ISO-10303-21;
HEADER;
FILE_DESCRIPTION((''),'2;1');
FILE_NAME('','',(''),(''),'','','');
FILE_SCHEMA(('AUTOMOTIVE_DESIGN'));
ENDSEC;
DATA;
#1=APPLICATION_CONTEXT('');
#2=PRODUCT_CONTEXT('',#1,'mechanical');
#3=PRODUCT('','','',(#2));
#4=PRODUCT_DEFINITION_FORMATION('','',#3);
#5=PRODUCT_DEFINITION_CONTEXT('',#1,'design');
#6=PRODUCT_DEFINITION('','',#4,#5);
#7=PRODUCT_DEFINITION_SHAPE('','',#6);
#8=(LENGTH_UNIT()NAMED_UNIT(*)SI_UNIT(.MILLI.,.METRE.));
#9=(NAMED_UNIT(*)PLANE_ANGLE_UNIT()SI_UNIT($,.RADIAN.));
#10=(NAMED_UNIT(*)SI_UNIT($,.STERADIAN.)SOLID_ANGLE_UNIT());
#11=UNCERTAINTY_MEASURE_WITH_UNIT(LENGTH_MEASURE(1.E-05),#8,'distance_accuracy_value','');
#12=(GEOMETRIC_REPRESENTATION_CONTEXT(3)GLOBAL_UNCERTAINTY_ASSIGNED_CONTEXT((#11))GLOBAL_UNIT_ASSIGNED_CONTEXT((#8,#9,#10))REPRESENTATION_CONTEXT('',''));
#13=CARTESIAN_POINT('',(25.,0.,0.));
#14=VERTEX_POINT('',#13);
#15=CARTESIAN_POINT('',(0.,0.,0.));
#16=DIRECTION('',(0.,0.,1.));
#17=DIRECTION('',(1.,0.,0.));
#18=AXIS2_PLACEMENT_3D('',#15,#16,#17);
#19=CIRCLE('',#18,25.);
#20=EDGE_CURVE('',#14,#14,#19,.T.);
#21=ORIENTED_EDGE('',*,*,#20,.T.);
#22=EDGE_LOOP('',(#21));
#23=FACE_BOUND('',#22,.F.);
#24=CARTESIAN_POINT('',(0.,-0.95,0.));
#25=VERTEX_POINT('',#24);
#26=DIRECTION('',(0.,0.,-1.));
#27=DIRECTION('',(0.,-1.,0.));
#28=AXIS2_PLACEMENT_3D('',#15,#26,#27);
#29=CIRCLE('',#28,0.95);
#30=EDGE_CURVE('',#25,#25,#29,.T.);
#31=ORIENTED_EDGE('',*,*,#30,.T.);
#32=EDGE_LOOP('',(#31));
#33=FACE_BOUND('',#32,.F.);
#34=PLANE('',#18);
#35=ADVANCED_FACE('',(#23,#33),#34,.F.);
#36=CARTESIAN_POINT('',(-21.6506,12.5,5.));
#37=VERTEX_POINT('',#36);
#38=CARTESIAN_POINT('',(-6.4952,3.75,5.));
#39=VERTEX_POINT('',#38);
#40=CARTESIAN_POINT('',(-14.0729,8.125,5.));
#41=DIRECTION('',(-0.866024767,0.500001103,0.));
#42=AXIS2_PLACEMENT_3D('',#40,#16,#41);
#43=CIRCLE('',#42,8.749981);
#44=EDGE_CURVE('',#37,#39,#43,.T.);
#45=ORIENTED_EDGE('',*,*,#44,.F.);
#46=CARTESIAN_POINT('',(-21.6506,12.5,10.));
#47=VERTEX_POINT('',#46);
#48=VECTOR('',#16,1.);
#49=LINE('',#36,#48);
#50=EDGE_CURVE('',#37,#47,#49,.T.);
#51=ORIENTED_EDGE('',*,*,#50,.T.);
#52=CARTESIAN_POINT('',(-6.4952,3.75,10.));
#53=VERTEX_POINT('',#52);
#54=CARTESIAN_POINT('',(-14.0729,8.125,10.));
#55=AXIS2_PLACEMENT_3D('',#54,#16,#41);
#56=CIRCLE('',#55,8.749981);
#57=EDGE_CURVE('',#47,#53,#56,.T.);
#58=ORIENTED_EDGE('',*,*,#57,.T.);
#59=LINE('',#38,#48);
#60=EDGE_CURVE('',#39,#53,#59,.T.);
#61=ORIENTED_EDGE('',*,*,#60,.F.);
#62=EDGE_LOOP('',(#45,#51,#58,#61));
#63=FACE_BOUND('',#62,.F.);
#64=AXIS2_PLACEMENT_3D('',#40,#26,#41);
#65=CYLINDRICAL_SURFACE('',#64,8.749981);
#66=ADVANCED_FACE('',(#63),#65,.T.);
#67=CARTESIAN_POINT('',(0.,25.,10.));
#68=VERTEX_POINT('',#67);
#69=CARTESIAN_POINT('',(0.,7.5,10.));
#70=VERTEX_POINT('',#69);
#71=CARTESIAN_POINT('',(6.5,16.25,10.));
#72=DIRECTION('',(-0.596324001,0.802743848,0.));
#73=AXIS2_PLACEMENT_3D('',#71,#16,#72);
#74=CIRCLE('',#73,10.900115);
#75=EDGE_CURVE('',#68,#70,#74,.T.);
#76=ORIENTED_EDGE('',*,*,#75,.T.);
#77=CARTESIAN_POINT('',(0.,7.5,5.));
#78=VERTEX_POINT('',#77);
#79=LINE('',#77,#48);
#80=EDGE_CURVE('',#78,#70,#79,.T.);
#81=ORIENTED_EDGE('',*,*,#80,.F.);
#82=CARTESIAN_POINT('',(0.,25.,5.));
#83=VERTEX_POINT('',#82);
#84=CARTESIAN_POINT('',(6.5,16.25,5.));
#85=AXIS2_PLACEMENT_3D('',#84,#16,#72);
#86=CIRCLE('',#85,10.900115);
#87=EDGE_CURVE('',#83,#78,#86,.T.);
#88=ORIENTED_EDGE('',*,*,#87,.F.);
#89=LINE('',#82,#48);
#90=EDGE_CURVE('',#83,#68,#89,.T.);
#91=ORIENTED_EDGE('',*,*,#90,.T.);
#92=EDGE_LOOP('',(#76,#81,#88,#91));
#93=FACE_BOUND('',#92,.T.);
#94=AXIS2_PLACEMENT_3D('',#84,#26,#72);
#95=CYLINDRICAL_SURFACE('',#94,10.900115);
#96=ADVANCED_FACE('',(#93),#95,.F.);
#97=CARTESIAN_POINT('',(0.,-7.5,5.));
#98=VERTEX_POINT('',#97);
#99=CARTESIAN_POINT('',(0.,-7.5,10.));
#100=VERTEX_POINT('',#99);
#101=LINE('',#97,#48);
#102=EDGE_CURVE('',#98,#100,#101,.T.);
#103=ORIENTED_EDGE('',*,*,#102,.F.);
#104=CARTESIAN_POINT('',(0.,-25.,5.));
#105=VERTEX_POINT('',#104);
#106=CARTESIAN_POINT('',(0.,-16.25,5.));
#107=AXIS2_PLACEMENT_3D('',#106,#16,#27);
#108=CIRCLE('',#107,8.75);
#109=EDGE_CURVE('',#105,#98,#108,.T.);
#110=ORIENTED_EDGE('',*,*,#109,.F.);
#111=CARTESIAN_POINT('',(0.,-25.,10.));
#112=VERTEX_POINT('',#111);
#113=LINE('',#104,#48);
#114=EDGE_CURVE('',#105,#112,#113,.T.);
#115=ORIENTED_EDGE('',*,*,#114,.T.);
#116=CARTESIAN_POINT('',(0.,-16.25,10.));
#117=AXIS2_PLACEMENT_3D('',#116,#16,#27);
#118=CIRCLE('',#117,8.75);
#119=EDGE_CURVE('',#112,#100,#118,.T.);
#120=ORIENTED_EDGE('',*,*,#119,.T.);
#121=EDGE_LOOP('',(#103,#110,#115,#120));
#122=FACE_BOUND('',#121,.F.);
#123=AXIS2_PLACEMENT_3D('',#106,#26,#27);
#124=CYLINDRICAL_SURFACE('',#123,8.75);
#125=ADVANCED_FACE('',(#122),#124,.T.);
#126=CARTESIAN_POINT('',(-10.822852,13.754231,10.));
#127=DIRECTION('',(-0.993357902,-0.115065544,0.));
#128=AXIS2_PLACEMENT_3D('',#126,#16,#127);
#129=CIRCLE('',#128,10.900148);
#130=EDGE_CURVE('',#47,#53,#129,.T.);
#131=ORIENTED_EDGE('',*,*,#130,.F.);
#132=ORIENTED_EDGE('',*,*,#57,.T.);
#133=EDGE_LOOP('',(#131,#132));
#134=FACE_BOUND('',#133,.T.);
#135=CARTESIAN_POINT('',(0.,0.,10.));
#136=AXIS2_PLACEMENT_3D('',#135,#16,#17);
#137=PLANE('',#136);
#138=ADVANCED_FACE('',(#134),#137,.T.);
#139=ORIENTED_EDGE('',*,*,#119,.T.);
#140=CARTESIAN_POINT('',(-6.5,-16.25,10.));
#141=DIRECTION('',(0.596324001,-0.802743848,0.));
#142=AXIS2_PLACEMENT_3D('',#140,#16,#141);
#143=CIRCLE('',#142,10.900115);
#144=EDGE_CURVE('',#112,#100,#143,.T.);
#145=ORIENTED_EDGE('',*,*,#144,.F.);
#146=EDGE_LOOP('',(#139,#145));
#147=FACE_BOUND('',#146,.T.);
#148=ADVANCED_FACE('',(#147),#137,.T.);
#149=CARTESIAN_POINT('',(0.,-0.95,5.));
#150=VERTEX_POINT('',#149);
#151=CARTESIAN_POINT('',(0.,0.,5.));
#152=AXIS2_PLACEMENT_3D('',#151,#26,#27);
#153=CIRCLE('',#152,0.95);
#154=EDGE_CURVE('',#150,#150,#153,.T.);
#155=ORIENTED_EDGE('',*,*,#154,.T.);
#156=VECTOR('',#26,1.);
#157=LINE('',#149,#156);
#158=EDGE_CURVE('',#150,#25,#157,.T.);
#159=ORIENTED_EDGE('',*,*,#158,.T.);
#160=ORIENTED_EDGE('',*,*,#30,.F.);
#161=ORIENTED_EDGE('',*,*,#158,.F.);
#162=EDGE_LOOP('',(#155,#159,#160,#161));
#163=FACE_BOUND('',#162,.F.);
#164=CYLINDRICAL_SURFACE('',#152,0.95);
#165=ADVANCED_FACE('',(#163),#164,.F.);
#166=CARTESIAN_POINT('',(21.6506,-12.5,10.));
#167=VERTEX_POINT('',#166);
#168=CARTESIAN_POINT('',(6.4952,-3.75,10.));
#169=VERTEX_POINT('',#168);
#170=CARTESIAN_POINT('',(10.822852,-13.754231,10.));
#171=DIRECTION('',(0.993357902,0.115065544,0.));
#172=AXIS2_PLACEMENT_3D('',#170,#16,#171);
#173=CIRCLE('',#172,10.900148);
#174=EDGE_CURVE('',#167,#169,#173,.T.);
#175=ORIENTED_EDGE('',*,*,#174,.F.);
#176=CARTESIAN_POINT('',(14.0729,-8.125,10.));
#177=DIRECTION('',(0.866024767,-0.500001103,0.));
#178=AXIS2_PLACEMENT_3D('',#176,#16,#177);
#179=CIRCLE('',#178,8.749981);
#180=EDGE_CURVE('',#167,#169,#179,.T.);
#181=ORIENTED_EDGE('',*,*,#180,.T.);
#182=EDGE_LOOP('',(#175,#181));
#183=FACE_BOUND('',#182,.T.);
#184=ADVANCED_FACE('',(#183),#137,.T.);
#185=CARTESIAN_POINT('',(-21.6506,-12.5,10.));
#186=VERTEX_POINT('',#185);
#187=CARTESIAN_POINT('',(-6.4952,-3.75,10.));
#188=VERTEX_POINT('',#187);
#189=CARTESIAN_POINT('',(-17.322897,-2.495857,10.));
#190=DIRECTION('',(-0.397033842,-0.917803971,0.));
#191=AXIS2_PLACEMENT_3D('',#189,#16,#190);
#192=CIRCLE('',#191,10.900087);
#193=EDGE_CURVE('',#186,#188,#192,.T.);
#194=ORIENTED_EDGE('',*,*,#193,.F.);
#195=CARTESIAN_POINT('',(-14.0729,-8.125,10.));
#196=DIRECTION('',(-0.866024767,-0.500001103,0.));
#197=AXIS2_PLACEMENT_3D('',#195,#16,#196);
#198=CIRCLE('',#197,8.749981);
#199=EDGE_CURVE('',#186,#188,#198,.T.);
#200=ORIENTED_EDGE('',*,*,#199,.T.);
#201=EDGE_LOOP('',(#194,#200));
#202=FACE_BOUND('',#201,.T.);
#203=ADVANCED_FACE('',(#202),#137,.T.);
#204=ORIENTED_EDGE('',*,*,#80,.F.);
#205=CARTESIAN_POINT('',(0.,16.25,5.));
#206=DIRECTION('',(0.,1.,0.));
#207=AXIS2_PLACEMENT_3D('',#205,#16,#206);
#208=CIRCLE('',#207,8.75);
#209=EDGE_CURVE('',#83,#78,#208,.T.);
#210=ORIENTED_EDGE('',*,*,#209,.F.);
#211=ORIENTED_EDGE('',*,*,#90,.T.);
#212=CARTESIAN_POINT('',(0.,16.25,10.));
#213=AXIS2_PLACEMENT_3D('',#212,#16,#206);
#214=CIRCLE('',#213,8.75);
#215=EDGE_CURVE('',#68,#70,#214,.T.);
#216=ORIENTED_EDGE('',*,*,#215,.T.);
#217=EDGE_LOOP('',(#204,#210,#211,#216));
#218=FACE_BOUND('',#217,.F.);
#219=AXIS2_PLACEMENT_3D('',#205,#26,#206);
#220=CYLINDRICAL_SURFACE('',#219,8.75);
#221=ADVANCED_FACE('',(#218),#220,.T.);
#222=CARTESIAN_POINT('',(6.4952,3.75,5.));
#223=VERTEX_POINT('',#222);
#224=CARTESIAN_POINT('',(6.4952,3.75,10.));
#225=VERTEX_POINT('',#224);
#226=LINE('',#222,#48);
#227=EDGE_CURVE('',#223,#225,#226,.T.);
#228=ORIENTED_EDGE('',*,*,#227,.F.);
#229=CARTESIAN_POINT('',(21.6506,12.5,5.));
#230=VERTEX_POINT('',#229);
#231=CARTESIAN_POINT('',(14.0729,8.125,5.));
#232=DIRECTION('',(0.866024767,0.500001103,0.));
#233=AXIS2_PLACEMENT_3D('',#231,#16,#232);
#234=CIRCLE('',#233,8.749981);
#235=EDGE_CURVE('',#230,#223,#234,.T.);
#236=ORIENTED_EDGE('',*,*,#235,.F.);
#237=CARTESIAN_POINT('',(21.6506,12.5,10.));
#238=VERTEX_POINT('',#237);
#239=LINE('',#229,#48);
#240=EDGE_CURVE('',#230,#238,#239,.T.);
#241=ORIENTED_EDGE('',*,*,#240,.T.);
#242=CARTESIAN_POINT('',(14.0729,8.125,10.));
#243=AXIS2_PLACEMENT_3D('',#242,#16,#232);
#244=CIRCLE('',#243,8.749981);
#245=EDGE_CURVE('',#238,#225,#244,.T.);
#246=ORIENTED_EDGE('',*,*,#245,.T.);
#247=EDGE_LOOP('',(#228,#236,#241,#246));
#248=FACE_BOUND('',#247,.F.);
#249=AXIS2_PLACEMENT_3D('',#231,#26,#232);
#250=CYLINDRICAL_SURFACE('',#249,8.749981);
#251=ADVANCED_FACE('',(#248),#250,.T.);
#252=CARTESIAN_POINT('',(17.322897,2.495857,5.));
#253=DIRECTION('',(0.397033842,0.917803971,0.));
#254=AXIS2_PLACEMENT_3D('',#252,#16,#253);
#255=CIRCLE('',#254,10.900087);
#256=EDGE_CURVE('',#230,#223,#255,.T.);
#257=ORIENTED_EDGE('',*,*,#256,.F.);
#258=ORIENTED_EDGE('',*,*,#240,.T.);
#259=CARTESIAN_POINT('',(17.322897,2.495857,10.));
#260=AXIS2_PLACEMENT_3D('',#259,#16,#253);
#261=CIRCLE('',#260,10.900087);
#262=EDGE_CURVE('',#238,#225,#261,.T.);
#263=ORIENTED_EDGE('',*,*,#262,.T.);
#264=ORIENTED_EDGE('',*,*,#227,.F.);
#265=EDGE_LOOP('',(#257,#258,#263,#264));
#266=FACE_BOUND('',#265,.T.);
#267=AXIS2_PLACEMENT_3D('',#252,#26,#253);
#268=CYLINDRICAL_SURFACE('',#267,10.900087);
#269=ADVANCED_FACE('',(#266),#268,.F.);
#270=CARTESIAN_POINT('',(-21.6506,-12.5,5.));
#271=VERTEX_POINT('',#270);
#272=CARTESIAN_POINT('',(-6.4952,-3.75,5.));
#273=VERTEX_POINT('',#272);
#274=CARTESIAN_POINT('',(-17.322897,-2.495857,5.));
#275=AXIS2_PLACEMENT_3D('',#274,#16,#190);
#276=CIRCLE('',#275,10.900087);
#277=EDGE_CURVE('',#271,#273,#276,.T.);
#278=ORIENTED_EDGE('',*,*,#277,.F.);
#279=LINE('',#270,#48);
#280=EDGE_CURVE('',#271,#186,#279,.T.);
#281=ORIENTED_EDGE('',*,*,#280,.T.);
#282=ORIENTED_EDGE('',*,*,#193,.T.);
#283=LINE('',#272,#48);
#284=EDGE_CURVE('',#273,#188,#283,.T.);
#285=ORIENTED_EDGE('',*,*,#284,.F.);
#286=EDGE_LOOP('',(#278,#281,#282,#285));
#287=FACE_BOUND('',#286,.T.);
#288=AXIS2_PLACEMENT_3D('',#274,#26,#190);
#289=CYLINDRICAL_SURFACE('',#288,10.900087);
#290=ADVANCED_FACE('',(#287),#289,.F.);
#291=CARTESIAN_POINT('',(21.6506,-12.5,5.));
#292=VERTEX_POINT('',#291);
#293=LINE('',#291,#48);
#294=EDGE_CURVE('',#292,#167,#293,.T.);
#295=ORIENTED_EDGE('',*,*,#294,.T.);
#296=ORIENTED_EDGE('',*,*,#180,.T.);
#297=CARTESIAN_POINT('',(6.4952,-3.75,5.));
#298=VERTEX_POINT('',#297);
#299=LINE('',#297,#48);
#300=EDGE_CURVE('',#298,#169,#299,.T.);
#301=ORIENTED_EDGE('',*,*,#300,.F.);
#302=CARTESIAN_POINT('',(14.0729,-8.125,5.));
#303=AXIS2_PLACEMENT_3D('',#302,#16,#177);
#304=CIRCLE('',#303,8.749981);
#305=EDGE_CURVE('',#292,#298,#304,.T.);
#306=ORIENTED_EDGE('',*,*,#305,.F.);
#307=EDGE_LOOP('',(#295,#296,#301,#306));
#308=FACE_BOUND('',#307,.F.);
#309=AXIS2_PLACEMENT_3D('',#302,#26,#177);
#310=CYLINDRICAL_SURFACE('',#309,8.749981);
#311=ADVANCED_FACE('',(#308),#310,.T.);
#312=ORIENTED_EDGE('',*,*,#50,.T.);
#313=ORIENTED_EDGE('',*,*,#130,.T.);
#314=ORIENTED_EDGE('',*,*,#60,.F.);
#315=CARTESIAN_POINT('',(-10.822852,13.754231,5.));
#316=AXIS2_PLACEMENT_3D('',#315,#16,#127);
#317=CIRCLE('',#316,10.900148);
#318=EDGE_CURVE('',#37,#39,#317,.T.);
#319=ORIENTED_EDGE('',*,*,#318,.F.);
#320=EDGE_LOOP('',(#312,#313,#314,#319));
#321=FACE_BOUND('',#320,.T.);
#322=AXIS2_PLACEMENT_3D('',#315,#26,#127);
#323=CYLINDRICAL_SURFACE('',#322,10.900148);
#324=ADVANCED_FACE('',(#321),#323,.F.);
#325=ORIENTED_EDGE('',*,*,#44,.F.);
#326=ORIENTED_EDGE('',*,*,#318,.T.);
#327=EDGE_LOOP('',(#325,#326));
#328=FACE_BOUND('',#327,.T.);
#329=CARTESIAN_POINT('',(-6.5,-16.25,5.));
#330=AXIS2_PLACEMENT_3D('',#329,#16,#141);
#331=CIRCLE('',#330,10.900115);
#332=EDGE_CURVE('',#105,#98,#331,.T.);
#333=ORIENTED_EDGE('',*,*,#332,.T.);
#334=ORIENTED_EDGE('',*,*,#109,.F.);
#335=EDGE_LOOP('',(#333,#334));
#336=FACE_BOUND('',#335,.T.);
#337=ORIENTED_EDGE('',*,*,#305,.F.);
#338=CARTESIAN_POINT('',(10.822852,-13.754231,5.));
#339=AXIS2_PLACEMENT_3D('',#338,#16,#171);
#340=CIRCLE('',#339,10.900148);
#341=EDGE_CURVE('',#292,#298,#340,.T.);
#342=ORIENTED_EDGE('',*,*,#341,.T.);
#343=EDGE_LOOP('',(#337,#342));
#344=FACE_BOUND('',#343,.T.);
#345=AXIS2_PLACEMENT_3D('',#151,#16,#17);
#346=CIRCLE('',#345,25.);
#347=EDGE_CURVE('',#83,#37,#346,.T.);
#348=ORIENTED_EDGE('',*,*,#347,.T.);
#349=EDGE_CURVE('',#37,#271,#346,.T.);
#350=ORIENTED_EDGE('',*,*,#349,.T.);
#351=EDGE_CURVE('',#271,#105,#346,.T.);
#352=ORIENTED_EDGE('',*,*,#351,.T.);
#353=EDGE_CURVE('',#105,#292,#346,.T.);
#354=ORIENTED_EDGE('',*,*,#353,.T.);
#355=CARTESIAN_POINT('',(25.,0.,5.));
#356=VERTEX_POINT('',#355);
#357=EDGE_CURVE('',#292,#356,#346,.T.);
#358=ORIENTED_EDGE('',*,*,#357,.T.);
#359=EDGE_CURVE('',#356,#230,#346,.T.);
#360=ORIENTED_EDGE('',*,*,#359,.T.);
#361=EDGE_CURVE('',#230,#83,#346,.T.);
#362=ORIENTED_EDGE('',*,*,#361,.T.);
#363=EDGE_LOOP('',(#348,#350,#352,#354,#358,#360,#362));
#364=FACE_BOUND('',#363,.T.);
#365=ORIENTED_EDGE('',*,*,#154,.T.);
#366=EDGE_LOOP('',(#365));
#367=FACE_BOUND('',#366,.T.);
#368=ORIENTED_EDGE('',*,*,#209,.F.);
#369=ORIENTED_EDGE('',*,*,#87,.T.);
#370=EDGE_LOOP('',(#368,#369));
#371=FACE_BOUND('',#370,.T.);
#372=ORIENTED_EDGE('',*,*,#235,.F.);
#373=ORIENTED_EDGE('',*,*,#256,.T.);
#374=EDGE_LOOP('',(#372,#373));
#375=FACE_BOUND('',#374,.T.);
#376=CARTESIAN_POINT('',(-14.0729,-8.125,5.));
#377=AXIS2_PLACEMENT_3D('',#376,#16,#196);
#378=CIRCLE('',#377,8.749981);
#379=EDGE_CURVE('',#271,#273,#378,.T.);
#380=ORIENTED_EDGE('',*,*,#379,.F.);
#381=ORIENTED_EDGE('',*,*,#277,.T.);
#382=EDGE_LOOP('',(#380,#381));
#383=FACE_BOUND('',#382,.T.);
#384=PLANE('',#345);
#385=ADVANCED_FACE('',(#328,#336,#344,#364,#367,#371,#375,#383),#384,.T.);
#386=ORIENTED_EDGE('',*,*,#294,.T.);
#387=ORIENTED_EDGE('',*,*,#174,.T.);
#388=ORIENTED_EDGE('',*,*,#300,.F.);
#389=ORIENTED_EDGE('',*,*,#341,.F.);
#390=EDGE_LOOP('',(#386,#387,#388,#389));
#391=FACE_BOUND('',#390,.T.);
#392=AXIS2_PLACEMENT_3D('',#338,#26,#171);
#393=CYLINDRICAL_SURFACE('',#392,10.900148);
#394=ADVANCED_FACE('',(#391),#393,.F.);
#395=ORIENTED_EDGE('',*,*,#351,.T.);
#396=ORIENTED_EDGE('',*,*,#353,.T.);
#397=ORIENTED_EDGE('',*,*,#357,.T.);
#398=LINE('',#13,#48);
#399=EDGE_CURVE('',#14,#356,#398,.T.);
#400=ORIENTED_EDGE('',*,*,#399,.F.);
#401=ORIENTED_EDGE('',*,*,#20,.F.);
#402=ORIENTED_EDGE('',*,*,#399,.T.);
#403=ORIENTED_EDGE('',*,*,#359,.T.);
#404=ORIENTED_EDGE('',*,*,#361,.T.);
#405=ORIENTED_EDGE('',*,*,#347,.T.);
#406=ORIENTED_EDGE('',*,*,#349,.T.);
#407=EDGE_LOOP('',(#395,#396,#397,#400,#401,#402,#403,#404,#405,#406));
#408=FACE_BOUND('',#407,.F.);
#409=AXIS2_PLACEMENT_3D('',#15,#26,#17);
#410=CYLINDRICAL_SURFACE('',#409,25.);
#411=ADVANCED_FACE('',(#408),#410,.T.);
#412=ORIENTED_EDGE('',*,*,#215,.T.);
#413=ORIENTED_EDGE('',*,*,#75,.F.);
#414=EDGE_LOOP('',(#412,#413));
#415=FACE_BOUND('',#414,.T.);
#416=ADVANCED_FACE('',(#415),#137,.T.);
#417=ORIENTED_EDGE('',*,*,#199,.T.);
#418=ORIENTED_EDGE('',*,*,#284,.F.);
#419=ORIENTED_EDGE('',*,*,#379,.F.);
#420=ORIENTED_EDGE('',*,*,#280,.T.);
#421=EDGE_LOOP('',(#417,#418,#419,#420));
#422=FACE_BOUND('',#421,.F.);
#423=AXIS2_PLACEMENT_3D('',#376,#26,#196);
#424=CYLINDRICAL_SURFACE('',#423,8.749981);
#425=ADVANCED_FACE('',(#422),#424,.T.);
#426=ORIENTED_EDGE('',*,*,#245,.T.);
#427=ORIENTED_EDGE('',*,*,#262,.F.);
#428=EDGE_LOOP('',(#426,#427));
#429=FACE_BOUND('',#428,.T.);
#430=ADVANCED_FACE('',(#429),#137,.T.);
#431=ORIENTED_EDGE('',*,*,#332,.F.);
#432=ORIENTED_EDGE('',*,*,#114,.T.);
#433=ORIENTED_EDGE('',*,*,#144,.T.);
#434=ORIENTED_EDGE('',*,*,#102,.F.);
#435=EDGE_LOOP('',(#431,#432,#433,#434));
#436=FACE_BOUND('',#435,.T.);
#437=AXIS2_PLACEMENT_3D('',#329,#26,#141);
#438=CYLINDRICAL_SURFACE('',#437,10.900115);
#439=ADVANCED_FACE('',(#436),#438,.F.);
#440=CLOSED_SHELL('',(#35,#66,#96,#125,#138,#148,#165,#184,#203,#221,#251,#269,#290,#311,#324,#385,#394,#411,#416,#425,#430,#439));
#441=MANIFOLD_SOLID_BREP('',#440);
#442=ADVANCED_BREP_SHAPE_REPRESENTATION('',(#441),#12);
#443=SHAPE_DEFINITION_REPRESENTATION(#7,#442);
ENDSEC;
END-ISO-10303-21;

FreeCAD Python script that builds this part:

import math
import FreeCAD as App
import Part
import Sketcher
from FreeCAD import Vector
Q = App.Units.Quantity

doc = App.newDocument("Part")
body = doc.addObject("PartDesign::Body", "Body")

# Sketch on XY plane
sketch1 = doc.addObject("Sketcher::SketchObject", "Sketch")
body.addObject(sketch1)
sketch1.AttachmentSupport = (doc.XY_Plane, [""])
sketch1.MapMode = "FlatFace"
sketch1.addGeometry(Part.Circle(Vector(0, 0, 0), Vector(0, 0, 1), 25), False)
sketch1.addConstraint([
    Sketcher.Constraint("Coincident", 0, 3, -1, 1),
    Sketcher.Constraint("Diameter", 0, Q("50 mm")),
])
pad1 = doc.addObject("PartDesign::Pad", "Pad")
body.addObject(pad1)
pad1.Profile = sketch1
pad1.Length = 5

# Sketch on XY plane
sketch2 = doc.addObject("Sketcher::SketchObject", "Sketch001")
body.addObject(sketch2)
sketch2.AttachmentSupport = (doc.XY_Plane, [""])
sketch2.MapMode = "FlatFace"
sketch2.AttachmentOffset = App.Placement(Vector(0, 0, 5), App.Rotation())
sketch2.addGeometry([
    Part.ArcOfCircle(Part.Circle(Vector(14, 8, 0), Vector(0, 0, 1), 9), math.radians(30), math.radians(210)),  # 0
    Part.ArcOfCircle(Part.Circle(Vector(17, 2, 0), Vector(0, 0, 1), 11), math.radians(67), math.radians(173)),  # 1
    Part.ArcOfCircle(Part.Circle(Vector(14, -8, 0), Vector(0, 0, 1), 9), math.radians(-30), math.radians(150)),  # 2
    Part.ArcOfCircle(Part.Circle(Vector(11, -14, 0), Vector(0, 0, 1), 11), math.radians(7), math.radians(113)),  # 3
    Part.ArcOfCircle(Part.Circle(Vector(0, 16, 0), Vector(0, 0, 1), 9), math.radians(90), math.radians(270)),  # 4
    Part.ArcOfCircle(Part.Circle(Vector(6, 16, 0), Vector(0, 0, 1), 11), math.radians(127), math.radians(233)),  # 5
    Part.ArcOfCircle(Part.Circle(Vector(0, -16, 0), Vector(0, 0, 1), 9), math.radians(-90), math.radians(90)),  # 6
    Part.ArcOfCircle(Part.Circle(Vector(-6, -16, 0), Vector(0, 0, 1), 11), math.radians(-53), math.radians(53)),  # 7
    Part.ArcOfCircle(Part.Circle(Vector(-14, 8, 0), Vector(0, 0, 1), 9), math.radians(150), math.radians(330)),  # 8
    Part.ArcOfCircle(Part.Circle(Vector(-11, 14, 0), Vector(0, 0, 1), 11), math.radians(-173), math.radians(-67)),  # 9
    Part.ArcOfCircle(Part.Circle(Vector(-14, -8, 0), Vector(0, 0, 1), 9), math.radians(-150), math.radians(30)),  # 10
    Part.ArcOfCircle(Part.Circle(Vector(-17, -2, 0), Vector(0, 0, 1), 11), math.radians(-113), math.radians(-7)),  # 11
], False)
sketch2.addConstraint([
    Sketcher.Constraint("Coincident", 0, 1, 1, 1),
    Sketcher.Constraint("Coincident", 1, 2, 0, 2),
    Sketcher.Constraint("Coincident", 2, 1, 3, 1),
    Sketcher.Constraint("Coincident", 3, 2, 2, 2),
    Sketcher.Constraint("Coincident", 4, 1, 5, 1),
    Sketcher.Constraint("Coincident", 5, 2, 4, 2),
    Sketcher.Constraint("Coincident", 6, 1, 7, 1),
    Sketcher.Constraint("Coincident", 7, 2, 6, 2),
    Sketcher.Constraint("Coincident", 8, 1, 9, 1),
    Sketcher.Constraint("Coincident", 9, 2, 8, 2),
    Sketcher.Constraint("Coincident", 10, 1, 11, 1),
    Sketcher.Constraint("Coincident", 11, 2, 10, 2),
    Sketcher.Constraint("Equal", 0, 2),
    Sketcher.Constraint("Equal", 1, 3),
    Sketcher.Constraint("Equal", 2, 4),
    Sketcher.Constraint("Equal", 3, 5),
    Sketcher.Constraint("Equal", 4, 6),
    Sketcher.Constraint("Equal", 5, 7),
    Sketcher.Constraint("Equal", 6, 8),
    Sketcher.Constraint("Equal", 7, 9),
    Sketcher.Constraint("Equal", 8, 10),
    Sketcher.Constraint("Equal", 9, 11),
    Sketcher.Constraint("Symmetric", 4, 3, 6, 3, -1, 1),
    Sketcher.Constraint("Symmetric", 5, 3, 7, 3, -1, 1),
    Sketcher.Constraint("Symmetric", 2, 3, 8, 3, -1, 1),
    Sketcher.Constraint("Symmetric", 3, 3, 9, 3, -1, 1),
    Sketcher.Constraint("Symmetric", 0, 3, 10, 3, -1, 1),
    Sketcher.Constraint("Symmetric", 1, 3, 11, 3, -1, 1),
    Sketcher.Constraint("Symmetric", 0, 3, 8, 3, -2),
    Sketcher.Constraint("PointOnObject", 4, 3, -2),
    Sketcher.Constraint("PointOnObject", 4, 1, -2),
    Sketcher.Constraint("PointOnObject", 5, 2, -2),
    Sketcher.Constraint("Horizontal", 0, 1, 8, 1),
    Sketcher.Constraint("Horizontal", 1, 2, 9, 2),
    Sketcher.Constraint("DistanceX", -1, 1, 5, 3, Q("6.5 mm")),
    Sketcher.Constraint("Radius", 3, Q("10.9 mm")),
    Sketcher.Constraint("DistanceX", 3, 3, 1, 3, Q("6.5 mm")),
    Sketcher.Constraint("DistanceY", -1, 1, 4, 1, Q("25 mm")),
    Sketcher.Constraint("DistanceY", -1, 1, 0, 1, Q("12.5 mm")),
    Sketcher.Constraint("DistanceX", 0, 3, 1, 3, Q("3.25 mm")),
    Sketcher.Constraint("DistanceX", -1, 1, 0, 3, Q("14.073 mm")),
])
pad2 = doc.addObject("PartDesign::Pad", "Pad001")
body.addObject(pad2)
pad2.Profile = sketch2
pad2.Length = 5

# Sketch on XY plane
sketch3 = doc.addObject("Sketcher::SketchObject", "Sketch002")
body.addObject(sketch3)
sketch3.AttachmentSupport = (doc.XY_Plane, [""])
sketch3.MapMode = "FlatFace"
sketch3.AttachmentOffset = App.Placement(Vector(0, 0, 5), App.Rotation())
sketch3.addGeometry(Part.Circle(Vector(0, 0, 0), Vector(0, 0, 1), 0.9), False)
sketch3.addConstraint([
    Sketcher.Constraint("Coincident", 0, 3, -1, 1),
    Sketcher.Constraint("Diameter", 0, Q("1.9 mm")),
])
doc.recompute()
hole = doc.addObject("PartDesign::Hole", "Hole")
body.addObject(hole)
hole.Profile = sketch3
hole.ThreadType = "None"
hole.Diameter = 1.9
hole.DepthType = "Dimension"
hole.Depth = 6
hole.DrillPoint = "Angled"
hole.DrillPointAngle = 118

doc.recompute()
